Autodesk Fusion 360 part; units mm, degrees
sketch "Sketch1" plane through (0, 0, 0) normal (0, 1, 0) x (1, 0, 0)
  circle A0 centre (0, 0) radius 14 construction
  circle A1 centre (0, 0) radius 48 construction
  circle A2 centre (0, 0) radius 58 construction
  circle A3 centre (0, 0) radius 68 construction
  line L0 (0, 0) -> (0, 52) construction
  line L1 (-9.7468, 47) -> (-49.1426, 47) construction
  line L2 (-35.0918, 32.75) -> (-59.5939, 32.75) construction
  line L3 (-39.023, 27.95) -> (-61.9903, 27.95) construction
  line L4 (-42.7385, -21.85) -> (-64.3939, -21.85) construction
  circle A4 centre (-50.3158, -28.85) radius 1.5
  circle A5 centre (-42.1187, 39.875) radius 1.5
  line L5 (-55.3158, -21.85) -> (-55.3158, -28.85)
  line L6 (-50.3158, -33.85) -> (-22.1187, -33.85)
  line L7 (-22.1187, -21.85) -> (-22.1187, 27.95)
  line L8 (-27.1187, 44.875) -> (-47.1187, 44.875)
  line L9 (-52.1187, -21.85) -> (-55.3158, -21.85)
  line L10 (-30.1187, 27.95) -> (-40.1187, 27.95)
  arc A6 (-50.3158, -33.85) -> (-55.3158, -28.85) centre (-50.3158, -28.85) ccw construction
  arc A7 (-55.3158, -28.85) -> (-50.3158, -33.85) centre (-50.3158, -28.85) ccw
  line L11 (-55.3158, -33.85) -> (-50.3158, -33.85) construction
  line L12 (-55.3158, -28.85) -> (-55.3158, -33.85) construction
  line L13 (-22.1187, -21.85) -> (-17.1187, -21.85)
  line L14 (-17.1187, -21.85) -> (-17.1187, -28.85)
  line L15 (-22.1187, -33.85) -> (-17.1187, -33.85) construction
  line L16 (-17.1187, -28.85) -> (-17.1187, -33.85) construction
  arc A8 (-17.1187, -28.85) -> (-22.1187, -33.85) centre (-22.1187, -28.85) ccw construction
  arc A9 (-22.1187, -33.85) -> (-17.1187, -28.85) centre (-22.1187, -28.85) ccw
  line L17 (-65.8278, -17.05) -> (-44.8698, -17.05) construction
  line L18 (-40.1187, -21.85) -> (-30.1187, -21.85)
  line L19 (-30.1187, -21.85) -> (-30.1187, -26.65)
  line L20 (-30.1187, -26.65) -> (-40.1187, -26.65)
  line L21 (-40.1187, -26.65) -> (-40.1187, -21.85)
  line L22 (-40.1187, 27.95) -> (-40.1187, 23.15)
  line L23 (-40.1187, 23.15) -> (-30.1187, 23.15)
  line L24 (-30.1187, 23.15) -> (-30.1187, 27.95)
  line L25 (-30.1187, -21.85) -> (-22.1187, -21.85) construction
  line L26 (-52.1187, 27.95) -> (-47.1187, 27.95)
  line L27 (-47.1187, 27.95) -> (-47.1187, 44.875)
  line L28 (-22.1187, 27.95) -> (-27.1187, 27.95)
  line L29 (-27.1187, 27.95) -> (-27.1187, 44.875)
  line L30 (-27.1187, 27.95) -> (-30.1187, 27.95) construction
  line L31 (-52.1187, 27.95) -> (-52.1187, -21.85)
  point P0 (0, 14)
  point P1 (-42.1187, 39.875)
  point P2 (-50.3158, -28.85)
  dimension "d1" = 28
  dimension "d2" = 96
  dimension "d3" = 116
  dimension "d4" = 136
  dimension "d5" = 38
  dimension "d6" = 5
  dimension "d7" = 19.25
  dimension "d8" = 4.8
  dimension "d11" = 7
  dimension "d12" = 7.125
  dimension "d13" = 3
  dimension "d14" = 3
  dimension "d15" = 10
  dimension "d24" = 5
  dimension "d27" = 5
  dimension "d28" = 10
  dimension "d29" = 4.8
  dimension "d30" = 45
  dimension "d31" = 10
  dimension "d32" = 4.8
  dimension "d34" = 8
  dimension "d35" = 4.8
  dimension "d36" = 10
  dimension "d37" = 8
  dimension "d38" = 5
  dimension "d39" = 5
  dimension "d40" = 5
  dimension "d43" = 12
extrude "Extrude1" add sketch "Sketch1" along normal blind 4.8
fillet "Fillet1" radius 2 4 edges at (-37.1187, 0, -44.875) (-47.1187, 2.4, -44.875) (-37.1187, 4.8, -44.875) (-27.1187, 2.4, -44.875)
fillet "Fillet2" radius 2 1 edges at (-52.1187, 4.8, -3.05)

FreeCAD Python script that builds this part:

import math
import FreeCAD as App
import Part
import Sketcher

V = App.Vector


def edges_at(feature, points):
    """Names of the edges that pass closest to the given points."""
    edges = feature.Shape.Edges
    near = lambda p: min(range(len(edges)), key=lambda i: edges[i].distToShape(Part.Vertex(*p))[0])
    return sorted({f"Edge{near(p) + 1}" for p in points})


def add_polygon(sketch, points):
    """Adds a closed chain of lines whose ends are joined by coincident constraints."""
    first, n = sketch.GeometryCount, len(points)
    for a, b in zip(points, points[1:] + points[:1]):
        sketch.addGeometry(Part.LineSegment(App.Vector(*a, 0), App.Vector(*b, 0)), False)
    for i in range(n):
        sketch.addConstraint(Sketcher.Constraint("Coincident", first + i, 2, first + (i + 1) % n, 1))

doc = App.newDocument("Part")
body = doc.addObject("PartDesign::Body", "Body")

# Sketch on XZ plane
sketch1 = body.newObject("Sketcher::SketchObject", "Sketch")
sketch1.AttachmentSupport = (doc.getObject("XZ_Plane"), [""])
sketch1.MapMode = "FlatFace"
sketch1.addGeometry(Part.LineSegment(V(-52.1, 21.9, 0), V(-55.3, 21.9, 0)), False)  # 0
sketch1.addGeometry(Part.LineSegment(V(-55.3, 21.9, 0), V(-55.3, 28.9, 0)), False)  # 1
sketch1.addGeometry(Part.ArcOfCircle(Part.Circle(V(-50.3, 28.9, 0), V(0, 0, 1), 5), math.radians(90), math.radians(180)), False)  # 2
sketch1.addGeometry(Part.LineSegment(V(-50.3, 33.9, 0), V(-22.1, 33.9, 0)), False)  # 3
sketch1.addGeometry(Part.ArcOfCircle(Part.Circle(V(-22.1, 28.9, 0), V(0, 0, 1), 5), math.radians(0), math.radians(90)), False)  # 4
sketch1.addGeometry(Part.LineSegment(V(-17.1, 28.9, 0), V(-17.1, 21.9, 0)), False)  # 5
sketch1.addGeometry(Part.LineSegment(V(-17.1, 21.9, 0), V(-22.1, 21.9, 0)), False)  # 6
sketch1.addGeometry(Part.LineSegment(V(-22.1, 21.9, 0), V(-22.1, -27.9, 0)), False)  # 7
sketch1.addGeometry(Part.LineSegment(V(-22.1, -27.9, 0), V(-27.1, -27.9, 0)), False)  # 8
sketch1.addGeometry(Part.LineSegment(V(-27.1, -27.9, 0), V(-27.1, -44.9, 0)), False)  # 9
sketch1.addGeometry(Part.LineSegment(V(-27.1, -44.9, 0), V(-47.1, -44.9, 0)), False)  # 10
sketch1.addGeometry(Part.LineSegment(V(-47.1, -44.9, 0), V(-47.1, -27.9, 0)), False)  # 11
sketch1.addGeometry(Part.LineSegment(V(-47.1, -27.9, 0), V(-52.1, -27.9, 0)), False)  # 12
sketch1.addGeometry(Part.LineSegment(V(-52.1, -27.9, 0), V(-52.1, 21.9, 0)), False)  # 13
sketch1.addGeometry(Part.Circle(V(-50.3, 28.9, 0), V(0, 0, 1), 1.5), False)  # 14
add_polygon(sketch1, [(-40.1, 26.6), (-40.1, 21.9), (-30.1, 21.9), (-30.1, 26.6)])  # lines 15-18
sketch1.addGeometry(Part.Circle(V(-42.1, -39.9, 0), V(0, 0, 1), 1.5), False)  # 19
add_polygon(sketch1, [(-40.1, -27.9), (-30.1, -27.9), (-30.1, -23.1), (-40.1, -23.1)])  # lines 20-23
sketch1.addConstraint([
    Sketcher.Constraint("Coincident", 0, 2, 1, 1),
    Sketcher.Constraint("Tangent", 1, 2, 2, 2),
    Sketcher.Constraint("Tangent", 2, 1, 3, 1),
    Sketcher.Constraint("Tangent", 3, 2, 4, 2),
    Sketcher.Constraint("Tangent", 4, 1, 5, 1),
    Sketcher.Constraint("Coincident", 5, 2, 6, 1),
    Sketcher.Constraint("Coincident", 6, 2, 7, 1),
    Sketcher.Constraint("Coincident", 7, 2, 8, 1),
    Sketcher.Constraint("Coincident", 8, 2, 9, 1),
    Sketcher.Constraint("Coincident", 9, 2, 10, 1),
    Sketcher.Constraint("Coincident", 10, 2, 11, 1),
    Sketcher.Constraint("Coincident", 11, 2, 12, 1),
    Sketcher.Constraint("Coincident", 12, 2, 13, 1),
    Sketcher.Constraint("Coincident", 13, 2, 0, 1),
    Sketcher.Constraint("Horizontal", 0),
    Sketcher.Constraint("Vertical", 1),
    Sketcher.Constraint("Horizontal", 3),
    Sketcher.Constraint("Vertical", 5),
    Sketcher.Constraint("Horizontal", 6),
    Sketcher.Constraint("Vertical", 7),
    Sketcher.Constraint("Horizontal", 8),
    Sketcher.Constraint("Vertical", 9),
    Sketcher.Constraint("Horizontal", 10),
    Sketcher.Constraint("Vertical", 11),
    Sketcher.Constraint("Horizontal", 12),
    Sketcher.Constraint("Vertical", 13),
    Sketcher.Constraint("Vertical", 15),
    Sketcher.Constraint("Horizontal", 16),
    Sketcher.Constraint("Vertical", 17),
    Sketcher.Constraint("Horizontal", 18),
    Sketcher.Constraint("Horizontal", 20),
    Sketcher.Constraint("Vertical", 21),
    Sketcher.Constraint("Horizontal", 22),
    Sketcher.Constraint("Vertical", 23),
    Sketcher.Constraint("Coincident", 14, 3, 2, 3),
    Sketcher.Constraint("Equal", 2, 4),
    Sketcher.Constraint("Equal", 14, 19),
    Sketcher.Constraint("Horizontal", 0, 2, 5, 2),
    Sketcher.Constraint("Horizontal", 8, 2, 11, 2),
    Sketcher.Constraint("Horizontal", 13, 2, 15, 2),
    Sketcher.Constraint("Horizontal", 12, 2, 20, 2),
    Sketcher.Constraint("Vertical", 3, 2, 6, 2),
    Sketcher.Constraint("Vertical", 17, 2, 20, 2),
    Sketcher.Constraint("Vertical", 18, 2, 22, 2),
    Sketcher.Constraint("Equal", 6, 8),
    Sketcher.Constraint("Equal", 8, 12),
    Sketcher.Constraint("Equal", 17, 21),
    Sketcher.Constraint("Diameter", 14, 3.0),
    Sketcher.Constraint("Radius", 2, 5.0),
    Sketcher.Constraint("DistanceX", 16, 1, 16, 2, 10.0),
    Sketcher.Constraint("DistanceY", 1, 1, 1, 2, 7.0),
    Sketcher.Constraint("DistanceY", 15, 2, 15, 1, 4.8),
    Sketcher.Constraint("DistanceY", 9, 2, 19, 3, 5.0),
    Sketcher.Constraint("DistanceX", 10, 2, 19, 3, 5.0),
    Sketcher.Constraint("DistanceX", 13, 2, 15, 2, 12.0),
    Sketcher.Constraint("DistanceX", 16, 2, 6, 2, 8.0),
    Sketcher.Constraint("DistanceY", 7, 2, 7, 1, 49.8),
    Sketcher.Constraint("DistanceX", 0, 2, 0, 1, 3.197),
    Sketcher.Constraint("DistanceY", 9, 2, 9, 1, 16.925),
    Sketcher.Constraint("DistanceY", -1, 1, 2, 3, 28.85),
    Sketcher.Constraint("DistanceX", 2, 3, -1, 1, 50.3158),
])
pad1 = body.newObject("PartDesign::Pad", "Pad")
pad1.Profile = sketch1
pad1.Length = 4.8
pad1.Reversed = True
doc.recompute()

fillet = body.newObject("PartDesign::Fillet", "Fillet")
fillet.Base = (pad1, edges_at(pad1, [
    (-37.119, 0, -44.875),
    (-47.119, 2.4, -44.875),
    (-37.119, 4.8, -44.875),
    (-27.119, 2.4, -44.875),
]))
fillet.Radius = 2
doc.recompute()

fillet2 = body.newObject("PartDesign::Fillet", "Fillet001")
fillet2.Base = (fillet, edges_at(fillet, [(-52.119, 4.8, -3.05)]))
fillet2.Radius = 2

doc.recompute()
